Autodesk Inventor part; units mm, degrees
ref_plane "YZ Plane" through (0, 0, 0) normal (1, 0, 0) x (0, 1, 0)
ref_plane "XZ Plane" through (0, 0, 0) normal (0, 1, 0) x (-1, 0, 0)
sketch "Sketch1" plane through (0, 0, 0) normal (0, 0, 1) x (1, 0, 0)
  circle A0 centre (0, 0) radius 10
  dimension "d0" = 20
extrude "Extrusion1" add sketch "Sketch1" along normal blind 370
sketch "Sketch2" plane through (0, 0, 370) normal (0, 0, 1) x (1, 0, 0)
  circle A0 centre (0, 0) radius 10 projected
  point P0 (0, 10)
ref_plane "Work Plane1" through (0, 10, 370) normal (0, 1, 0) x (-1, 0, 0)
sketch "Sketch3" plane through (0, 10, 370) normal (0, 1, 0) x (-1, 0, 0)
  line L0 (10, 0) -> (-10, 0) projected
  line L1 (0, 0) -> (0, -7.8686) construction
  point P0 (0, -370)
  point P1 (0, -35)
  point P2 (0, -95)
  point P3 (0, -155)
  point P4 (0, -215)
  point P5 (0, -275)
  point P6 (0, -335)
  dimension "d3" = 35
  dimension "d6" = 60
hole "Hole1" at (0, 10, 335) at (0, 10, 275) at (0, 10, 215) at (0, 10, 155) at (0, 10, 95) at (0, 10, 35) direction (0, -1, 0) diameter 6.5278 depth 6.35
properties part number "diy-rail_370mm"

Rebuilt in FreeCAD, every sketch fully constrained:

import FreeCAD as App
import Part
import Sketcher
from FreeCAD import Vector
Q = App.Units.Quantity

doc = App.newDocument("Part")
body = doc.addObject("PartDesign::Body", "Body")

sketch1 = doc.addObject("Sketcher::SketchObject", "Sketch")
body.addObject(sketch1)
sketch1.AttachmentSupport = (doc.XY_Plane, [""])
sketch1.MapMode = "FlatFace"
sketch1.addGeometry(Part.Circle(Vector(0, 0, 0), Vector(0, 0, 1), 10), False)
sketch1.addConstraint(Sketcher.Constraint("Coincident", 0, 3, -1, 1))
sketch1.addConstraint(Sketcher.Constraint("Diameter", 0, Q("0.7874 in")))
pad1 = doc.addObject("PartDesign::Pad", "Pad")
body.addObject(pad1)
pad1.Profile = sketch1
pad1.Length = 370

sketch2 = doc.addObject("Sketcher::SketchObject", "Sketch001")
body.addObject(sketch2)
sketch2.AttachmentSupport = (doc.XZ_Plane, [""])
sketch2.MapMode = "FlatFace"
sketch2.AttachmentOffset = App.Placement(Vector(0, 0, -0.3937008 * 25.4), App.Rotation())
sketch2.addGeometry(Part.Circle(Vector(0, 335, 0), Vector(0, 0, 1), 3.3), False)
sketch2.addGeometry(Part.Circle(Vector(0, 275, 0), Vector(0, 0, 1), 3.3), False)
sketch2.addGeometry(Part.Circle(Vector(0, 215, 0), Vector(0, 0, 1), 3.3), False)
sketch2.addGeometry(Part.Circle(Vector(0, 155, 0), Vector(0, 0, 1), 3.3), False)
sketch2.addGeometry(Part.Circle(Vector(0, 95, 0), Vector(0, 0, 1), 3.3), False)
sketch2.addGeometry(Part.Circle(Vector(0, 35, 0), Vector(0, 0, 1), 3.3), False)
sketch2.addConstraint(Sketcher.Constraint("Equal", 0, 1))
sketch2.addConstraint(Sketcher.Constraint("Equal", 1, 2))
sketch2.addConstraint(Sketcher.Constraint("Equal", 2, 3))
sketch2.addConstraint(Sketcher.Constraint("Equal", 3, 4))
sketch2.addConstraint(Sketcher.Constraint("Equal", 4, 5))
sketch2.addConstraint(Sketcher.Constraint("PointOnObject", 0, 3, -2))
sketch2.addConstraint(Sketcher.Constraint("PointOnObject", 1, 3, -2))
sketch2.addConstraint(Sketcher.Constraint("PointOnObject", 2, 3, -2))
sketch2.addConstraint(Sketcher.Constraint("PointOnObject", 3, 3, -2))
sketch2.addConstraint(Sketcher.Constraint("PointOnObject", 4, 3, -2))
sketch2.addConstraint(Sketcher.Constraint("PointOnObject", 5, 3, -2))
sketch2.addConstraint(Sketcher.Constraint("Diameter", 0, Q("0.257 in")))
sketch2.addConstraint(Sketcher.Constraint("DistanceY", 1, 3, 0, 3, Q("2.3622 in")))
sketch2.addConstraint(Sketcher.Constraint("DistanceY", 2, 3, 1, 3, Q("2.3622 in")))
sketch2.addConstraint(Sketcher.Constraint("DistanceY", 3, 3, 2, 3, Q("2.3622 in")))
sketch2.addConstraint(Sketcher.Constraint("DistanceY", 4, 3, 3, 3, Q("2.3622 in")))
sketch2.addConstraint(Sketcher.Constraint("DistanceY", 5, 3, 4, 3, Q("2.3622 in")))
sketch2.addConstraint(Sketcher.Constraint("DistanceY", -1, 1, 0, 3, Q("335 mm")))
doc.recompute()
hole = doc.addObject("PartDesign::Hole", "Hole")
body.addObject(hole)
hole.Profile = sketch2
hole.ThreadType = "None"
hole.Diameter = Q("0.257 in")
hole.DepthType = "Dimension"
hole.Depth = Q("0.25 in")
hole.DrillPoint = "Flat"
hole.Reversed = True

doc.recompute()
